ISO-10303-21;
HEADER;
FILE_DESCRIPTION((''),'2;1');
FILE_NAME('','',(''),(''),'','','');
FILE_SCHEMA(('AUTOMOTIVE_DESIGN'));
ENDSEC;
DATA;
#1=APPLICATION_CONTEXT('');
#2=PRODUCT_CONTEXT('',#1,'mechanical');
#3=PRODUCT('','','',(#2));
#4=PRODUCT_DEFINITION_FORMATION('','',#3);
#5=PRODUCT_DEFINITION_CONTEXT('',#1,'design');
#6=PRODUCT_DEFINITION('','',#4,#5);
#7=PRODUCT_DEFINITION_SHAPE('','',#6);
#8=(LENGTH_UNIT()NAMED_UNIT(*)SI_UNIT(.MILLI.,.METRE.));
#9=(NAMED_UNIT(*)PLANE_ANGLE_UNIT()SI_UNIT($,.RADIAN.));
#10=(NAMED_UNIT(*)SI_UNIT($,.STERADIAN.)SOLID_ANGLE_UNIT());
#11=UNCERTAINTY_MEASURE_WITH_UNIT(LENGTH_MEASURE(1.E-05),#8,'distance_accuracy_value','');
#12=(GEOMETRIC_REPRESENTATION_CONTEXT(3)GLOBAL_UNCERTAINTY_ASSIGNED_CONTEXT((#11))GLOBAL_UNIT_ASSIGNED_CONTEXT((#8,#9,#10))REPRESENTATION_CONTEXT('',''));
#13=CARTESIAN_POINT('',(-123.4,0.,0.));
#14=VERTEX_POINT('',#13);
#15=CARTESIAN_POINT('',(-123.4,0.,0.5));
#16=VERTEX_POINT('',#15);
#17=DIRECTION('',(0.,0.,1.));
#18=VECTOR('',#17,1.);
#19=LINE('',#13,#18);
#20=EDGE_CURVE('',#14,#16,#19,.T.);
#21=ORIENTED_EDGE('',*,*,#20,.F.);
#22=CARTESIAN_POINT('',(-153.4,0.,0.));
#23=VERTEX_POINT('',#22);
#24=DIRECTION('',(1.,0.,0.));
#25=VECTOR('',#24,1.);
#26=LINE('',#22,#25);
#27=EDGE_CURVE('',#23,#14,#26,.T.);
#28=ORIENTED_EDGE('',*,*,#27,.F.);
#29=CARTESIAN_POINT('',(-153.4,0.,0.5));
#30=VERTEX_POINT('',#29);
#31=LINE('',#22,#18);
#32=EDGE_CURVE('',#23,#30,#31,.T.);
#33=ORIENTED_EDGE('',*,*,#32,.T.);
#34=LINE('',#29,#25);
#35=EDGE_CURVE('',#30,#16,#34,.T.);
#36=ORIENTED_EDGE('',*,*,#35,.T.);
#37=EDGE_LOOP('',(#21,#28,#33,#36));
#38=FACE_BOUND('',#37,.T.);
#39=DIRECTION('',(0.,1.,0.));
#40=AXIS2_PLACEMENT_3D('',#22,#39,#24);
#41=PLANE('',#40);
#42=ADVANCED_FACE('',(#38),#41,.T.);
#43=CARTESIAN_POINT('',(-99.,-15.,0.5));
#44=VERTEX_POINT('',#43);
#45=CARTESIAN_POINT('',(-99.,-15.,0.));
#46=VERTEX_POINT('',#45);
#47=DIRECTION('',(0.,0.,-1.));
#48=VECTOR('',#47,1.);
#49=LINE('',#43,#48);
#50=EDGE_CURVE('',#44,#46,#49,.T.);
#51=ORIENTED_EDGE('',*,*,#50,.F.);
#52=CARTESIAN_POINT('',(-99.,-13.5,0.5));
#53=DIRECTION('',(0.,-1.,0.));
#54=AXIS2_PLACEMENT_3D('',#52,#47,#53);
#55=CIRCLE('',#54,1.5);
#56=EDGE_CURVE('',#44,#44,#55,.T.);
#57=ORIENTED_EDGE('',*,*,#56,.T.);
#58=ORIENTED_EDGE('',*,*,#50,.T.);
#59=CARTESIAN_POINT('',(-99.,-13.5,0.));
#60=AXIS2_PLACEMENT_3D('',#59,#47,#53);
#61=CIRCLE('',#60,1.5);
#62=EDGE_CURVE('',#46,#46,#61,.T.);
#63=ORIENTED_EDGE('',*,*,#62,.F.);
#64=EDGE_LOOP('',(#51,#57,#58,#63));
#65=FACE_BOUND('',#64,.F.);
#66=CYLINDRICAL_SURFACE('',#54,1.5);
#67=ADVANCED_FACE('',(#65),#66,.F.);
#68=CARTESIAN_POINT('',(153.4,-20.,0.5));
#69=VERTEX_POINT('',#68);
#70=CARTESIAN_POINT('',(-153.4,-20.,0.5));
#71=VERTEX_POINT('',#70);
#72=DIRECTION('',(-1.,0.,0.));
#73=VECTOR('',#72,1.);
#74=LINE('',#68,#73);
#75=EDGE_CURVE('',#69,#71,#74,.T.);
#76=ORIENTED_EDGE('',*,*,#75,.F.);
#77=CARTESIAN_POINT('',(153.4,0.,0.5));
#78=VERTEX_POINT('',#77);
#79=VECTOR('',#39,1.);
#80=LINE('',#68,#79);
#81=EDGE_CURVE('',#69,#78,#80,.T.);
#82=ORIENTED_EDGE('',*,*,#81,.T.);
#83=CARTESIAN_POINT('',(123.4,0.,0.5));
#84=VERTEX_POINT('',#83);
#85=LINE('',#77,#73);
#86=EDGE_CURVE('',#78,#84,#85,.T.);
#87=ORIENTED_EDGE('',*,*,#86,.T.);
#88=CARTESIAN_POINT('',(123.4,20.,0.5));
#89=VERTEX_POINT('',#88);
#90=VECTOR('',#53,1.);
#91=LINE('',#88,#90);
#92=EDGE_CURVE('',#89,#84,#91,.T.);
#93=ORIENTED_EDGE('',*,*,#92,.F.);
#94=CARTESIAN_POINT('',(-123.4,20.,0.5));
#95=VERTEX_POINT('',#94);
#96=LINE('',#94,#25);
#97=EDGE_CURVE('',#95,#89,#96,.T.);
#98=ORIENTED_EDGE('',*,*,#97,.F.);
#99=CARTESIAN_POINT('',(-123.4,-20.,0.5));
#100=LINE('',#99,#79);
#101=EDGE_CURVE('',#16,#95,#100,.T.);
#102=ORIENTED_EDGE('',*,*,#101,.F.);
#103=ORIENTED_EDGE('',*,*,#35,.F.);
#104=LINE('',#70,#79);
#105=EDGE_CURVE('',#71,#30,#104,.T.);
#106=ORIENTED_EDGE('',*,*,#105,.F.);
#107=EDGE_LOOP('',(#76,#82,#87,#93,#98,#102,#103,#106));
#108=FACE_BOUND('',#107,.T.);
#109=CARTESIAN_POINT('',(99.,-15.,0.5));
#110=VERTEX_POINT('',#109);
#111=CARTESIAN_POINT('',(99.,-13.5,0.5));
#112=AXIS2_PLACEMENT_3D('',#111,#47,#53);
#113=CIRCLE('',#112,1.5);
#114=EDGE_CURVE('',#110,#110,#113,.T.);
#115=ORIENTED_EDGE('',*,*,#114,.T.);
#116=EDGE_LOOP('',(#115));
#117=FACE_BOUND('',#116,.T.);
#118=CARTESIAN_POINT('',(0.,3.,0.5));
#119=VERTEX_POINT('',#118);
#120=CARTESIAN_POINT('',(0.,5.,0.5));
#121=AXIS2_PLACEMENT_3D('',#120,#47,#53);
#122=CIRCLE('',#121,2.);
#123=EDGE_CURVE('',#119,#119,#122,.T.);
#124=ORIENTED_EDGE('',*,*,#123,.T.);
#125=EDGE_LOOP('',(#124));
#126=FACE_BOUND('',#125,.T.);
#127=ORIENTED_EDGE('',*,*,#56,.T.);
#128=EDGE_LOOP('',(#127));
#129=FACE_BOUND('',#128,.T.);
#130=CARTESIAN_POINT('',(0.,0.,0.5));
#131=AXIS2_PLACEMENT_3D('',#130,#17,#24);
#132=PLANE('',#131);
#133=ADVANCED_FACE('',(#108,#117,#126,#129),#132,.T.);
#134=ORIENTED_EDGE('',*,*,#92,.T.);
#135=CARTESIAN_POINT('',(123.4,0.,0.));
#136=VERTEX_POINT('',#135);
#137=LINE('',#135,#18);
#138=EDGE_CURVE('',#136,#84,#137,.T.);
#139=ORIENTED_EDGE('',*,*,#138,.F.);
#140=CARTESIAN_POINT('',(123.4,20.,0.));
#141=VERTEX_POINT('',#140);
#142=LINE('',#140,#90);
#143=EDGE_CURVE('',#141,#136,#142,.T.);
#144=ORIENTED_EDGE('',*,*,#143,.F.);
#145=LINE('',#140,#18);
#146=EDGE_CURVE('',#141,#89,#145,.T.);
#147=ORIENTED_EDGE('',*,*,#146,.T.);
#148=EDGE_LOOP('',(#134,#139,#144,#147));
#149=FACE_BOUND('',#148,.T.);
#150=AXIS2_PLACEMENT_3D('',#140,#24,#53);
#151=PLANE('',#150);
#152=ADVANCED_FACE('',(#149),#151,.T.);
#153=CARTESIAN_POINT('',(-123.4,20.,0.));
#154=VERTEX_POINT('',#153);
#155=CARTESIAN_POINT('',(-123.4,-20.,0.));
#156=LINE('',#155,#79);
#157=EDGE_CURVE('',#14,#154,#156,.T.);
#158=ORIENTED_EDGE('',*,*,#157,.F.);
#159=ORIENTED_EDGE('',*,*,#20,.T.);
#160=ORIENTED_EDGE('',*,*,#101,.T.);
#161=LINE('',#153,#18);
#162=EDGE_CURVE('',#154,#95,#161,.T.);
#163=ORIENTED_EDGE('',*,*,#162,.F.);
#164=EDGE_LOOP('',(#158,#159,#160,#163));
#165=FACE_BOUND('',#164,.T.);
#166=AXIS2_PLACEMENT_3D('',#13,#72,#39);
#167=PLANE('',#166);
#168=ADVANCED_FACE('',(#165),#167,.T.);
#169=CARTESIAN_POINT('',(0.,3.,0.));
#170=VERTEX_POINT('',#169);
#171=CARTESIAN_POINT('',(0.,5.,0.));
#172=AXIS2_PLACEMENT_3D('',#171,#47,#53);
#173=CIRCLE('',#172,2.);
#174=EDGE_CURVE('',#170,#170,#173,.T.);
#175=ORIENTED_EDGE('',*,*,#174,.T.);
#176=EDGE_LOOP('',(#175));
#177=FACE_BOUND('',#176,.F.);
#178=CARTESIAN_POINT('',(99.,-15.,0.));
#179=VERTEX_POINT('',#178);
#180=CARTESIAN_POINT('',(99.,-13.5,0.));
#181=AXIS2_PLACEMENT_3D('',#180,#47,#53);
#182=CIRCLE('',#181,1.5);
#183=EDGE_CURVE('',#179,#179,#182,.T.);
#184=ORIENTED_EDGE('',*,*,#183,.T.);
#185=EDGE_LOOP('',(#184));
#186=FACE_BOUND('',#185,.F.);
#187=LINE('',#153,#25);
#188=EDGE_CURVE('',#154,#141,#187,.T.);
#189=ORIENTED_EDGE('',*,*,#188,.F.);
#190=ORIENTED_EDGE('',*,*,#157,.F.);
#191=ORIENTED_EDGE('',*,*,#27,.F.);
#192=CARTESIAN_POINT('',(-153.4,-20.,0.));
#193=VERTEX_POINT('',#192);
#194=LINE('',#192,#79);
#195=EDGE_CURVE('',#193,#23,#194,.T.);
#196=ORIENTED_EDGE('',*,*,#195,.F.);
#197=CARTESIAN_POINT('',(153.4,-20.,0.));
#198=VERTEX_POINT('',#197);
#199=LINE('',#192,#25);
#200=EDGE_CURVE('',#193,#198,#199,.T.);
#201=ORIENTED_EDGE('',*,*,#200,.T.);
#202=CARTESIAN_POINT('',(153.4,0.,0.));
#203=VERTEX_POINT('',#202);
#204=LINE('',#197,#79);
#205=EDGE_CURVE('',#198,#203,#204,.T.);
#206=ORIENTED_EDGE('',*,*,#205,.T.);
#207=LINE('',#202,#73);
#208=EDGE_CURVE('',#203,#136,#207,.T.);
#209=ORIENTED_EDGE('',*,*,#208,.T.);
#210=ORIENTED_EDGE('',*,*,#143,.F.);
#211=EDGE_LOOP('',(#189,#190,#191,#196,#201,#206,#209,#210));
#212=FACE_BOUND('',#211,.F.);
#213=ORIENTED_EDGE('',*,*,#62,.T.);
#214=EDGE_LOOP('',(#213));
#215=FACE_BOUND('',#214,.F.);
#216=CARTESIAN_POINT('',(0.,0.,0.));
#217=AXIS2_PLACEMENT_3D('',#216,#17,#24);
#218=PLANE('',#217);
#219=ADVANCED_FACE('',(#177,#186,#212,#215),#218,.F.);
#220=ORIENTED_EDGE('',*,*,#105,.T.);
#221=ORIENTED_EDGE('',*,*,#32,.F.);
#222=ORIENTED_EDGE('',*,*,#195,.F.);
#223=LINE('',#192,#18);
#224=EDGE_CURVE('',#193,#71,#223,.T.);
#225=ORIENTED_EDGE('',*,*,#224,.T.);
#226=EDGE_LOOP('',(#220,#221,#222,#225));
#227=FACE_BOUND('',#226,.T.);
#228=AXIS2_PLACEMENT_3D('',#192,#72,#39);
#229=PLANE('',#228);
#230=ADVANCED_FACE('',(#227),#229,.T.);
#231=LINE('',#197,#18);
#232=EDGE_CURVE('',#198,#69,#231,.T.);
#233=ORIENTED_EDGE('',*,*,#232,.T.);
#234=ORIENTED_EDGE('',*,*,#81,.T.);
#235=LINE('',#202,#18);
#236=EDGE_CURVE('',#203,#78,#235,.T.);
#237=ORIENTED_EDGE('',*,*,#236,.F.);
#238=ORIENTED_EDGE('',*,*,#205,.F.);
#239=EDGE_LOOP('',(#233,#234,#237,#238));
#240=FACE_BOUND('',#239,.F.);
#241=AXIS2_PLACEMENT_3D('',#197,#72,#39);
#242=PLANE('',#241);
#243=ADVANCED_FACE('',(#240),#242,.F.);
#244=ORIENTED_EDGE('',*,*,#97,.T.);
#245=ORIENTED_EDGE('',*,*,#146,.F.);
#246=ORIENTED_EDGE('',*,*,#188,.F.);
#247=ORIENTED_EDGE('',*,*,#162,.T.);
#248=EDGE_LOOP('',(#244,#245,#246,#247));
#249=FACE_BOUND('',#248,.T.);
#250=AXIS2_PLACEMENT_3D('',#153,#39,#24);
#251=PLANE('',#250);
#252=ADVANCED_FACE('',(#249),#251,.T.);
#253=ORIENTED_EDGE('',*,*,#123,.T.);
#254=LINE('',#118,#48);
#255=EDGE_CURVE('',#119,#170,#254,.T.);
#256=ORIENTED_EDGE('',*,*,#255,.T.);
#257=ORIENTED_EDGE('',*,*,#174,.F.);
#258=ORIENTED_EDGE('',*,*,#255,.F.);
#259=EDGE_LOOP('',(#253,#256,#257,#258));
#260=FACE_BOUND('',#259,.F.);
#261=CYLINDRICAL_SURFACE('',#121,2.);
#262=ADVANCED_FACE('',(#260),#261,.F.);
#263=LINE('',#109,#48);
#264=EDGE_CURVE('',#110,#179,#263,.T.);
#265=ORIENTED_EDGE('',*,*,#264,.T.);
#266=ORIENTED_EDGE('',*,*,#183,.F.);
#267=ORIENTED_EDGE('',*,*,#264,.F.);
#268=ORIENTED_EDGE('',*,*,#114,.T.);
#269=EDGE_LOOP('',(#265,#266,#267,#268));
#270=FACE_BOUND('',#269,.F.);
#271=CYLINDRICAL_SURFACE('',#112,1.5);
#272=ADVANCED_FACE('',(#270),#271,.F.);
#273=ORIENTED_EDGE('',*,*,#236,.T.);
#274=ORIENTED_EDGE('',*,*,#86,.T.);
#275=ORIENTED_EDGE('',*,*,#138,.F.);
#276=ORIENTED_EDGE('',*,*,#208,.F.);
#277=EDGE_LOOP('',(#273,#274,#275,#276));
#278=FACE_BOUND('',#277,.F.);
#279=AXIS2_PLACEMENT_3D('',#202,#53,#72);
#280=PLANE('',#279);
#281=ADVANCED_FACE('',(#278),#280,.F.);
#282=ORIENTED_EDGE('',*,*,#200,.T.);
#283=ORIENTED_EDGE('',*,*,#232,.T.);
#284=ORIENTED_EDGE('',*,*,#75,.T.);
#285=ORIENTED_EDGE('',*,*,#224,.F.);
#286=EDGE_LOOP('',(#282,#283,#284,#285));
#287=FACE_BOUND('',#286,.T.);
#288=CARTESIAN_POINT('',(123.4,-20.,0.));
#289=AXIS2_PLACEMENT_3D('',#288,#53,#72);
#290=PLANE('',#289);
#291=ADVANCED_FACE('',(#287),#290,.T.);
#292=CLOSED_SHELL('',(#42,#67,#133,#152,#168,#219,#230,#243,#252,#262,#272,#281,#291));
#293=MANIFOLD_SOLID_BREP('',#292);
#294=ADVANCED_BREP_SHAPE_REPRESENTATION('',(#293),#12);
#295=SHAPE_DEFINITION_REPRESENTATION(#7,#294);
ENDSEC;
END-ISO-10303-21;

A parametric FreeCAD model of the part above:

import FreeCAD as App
import Part
import Sketcher

V = App.Vector
Q = App.Units.Quantity


def add_polygon(sketch, points):
    """Adds a closed chain of lines whose ends are joined by coincident constraints."""
    first, n = sketch.GeometryCount, len(points)
    for a, b in zip(points, points[1:] + points[:1]):
        sketch.addGeometry(Part.LineSegment(App.Vector(*a, 0), App.Vector(*b, 0)), False)
    for i in range(n):
        sketch.addConstraint(Sketcher.Constraint("Coincident", first + i, 2, first + (i + 1) % n, 1))

doc = App.newDocument("Part")
body = doc.addObject("PartDesign::Body", "Body")

# Sketch on XY plane
sketch1 = body.newObject("Sketcher::SketchObject", "Sketch")
sketch1.AttachmentSupport = (doc.getObject("XY_Plane"), [""])
sketch1.MapMode = "FlatFace"
add_polygon(sketch1, [(153, -20), (153, 0), (123, 0), (123, 20), (-123, 20), (-123, 0), (-153, 0), (-153, -20)])  # lines 0-7
sketch1.addConstraint([
    Sketcher.Constraint("Vertical", 0),
    Sketcher.Constraint("Horizontal", 1),
    Sketcher.Constraint("Vertical", 2),
    Sketcher.Constraint("Horizontal", 3),
    Sketcher.Constraint("Vertical", 4),
    Sketcher.Constraint("Horizontal", 5),
    Sketcher.Constraint("Vertical", 6),
    Sketcher.Constraint("Horizontal", 7),
    Sketcher.Constraint("Symmetric", 1, 2, 4, 2, -1, 1),
    Sketcher.Constraint("Symmetric", 0, 2, 5, 2, -2),
    Sketcher.Constraint("Equal", 0, 2),
    Sketcher.Constraint("DistanceX", 1, 2, 1, 1, Q("30 mm")),
    Sketcher.Constraint("DistanceY", 0, 1, 0, 2, Q("20 mm")),
    Sketcher.Constraint("DistanceX", 3, 2, 3, 1, Q("246.8 mm")),
])
pad1 = body.newObject("PartDesign::Pad", "Pad")
pad1.Profile = sketch1
pad1.Length = 0.5

# Sketch on XY plane
sketch2 = body.newObject("Sketcher::SketchObject", "Sketch001")
sketch2.AttachmentSupport = (doc.getObject("XY_Plane"), [""])
sketch2.MapMode = "FlatFace"
sketch2.AttachmentOffset = App.Placement(V(0, 0, 0.5), App.Rotation())
sketch2.addGeometry(Part.Circle(V(0, 5, 0), V(0, 0, 1), 2), False)
sketch2.addConstraint([
    Sketcher.Constraint("PointOnObject", 0, 3, -2),
    Sketcher.Constraint("Diameter", 0, Q("4 mm")),
    Sketcher.Constraint("DistanceY", -1, 1, 0, 3, Q("5 mm")),
])
doc.recompute()
hole = body.newObject("PartDesign::Hole", "Hole")
hole.Profile = sketch2
hole.ThreadType = "None"
hole.Diameter = 4
hole.DepthType = "Dimension"
hole.Depth = 0.5
hole.DrillPoint = "Angled"
hole.DrillPointAngle = 118

# Sketch on XY plane
sketch3 = body.newObject("Sketcher::SketchObject", "Sketch002")
sketch3.AttachmentSupport = (doc.getObject("XY_Plane"), [""])
sketch3.MapMode = "FlatFace"
sketch3.AttachmentOffset = App.Placement(V(0, 0, 0.5), App.Rotation())
sketch3.addGeometry(Part.Circle(V(-99, -13.5, 0), V(0, 0, 1), 1.5), False)
sketch3.addConstraint([
    Sketcher.Constraint("Diameter", 0, Q("3 mm")),
    Sketcher.Constraint("DistanceX", 0, 3, -1, 1, Q("99 mm")),
    Sketcher.Constraint("DistanceY", 0, 3, -1, 1, Q("13.5 mm")),
])
doc.recompute()
hole2 = body.newObject("PartDesign::Hole", "Hole001")
hole2.Profile = sketch3
hole2.ThreadType = "None"
hole2.Diameter = 3
hole2.DepthType = "Dimension"
hole2.Depth = 0.5
hole2.DrillPoint = "Angled"
hole2.DrillPointAngle = 118

# Sketch on XY plane
sketch4 = body.newObject("Sketcher::SketchObject", "Sketch003")
sketch4.AttachmentSupport = (doc.getObject("XY_Plane"), [""])
sketch4.MapMode = "FlatFace"
sketch4.AttachmentOffset = App.Placement(V(0, 0, 0.5), App.Rotation())
sketch4.addGeometry(Part.Circle(V(99, -13.5, 0), V(0, 0, 1), 1.5), False)
sketch4.addConstraint([
    Sketcher.Constraint("Diameter", 0, Q("3 mm")),
    Sketcher.Constraint("DistanceX", -1, 1, 0, 3, Q("99 mm")),
    Sketcher.Constraint("DistanceY", 0, 3, -1, 1, Q("13.5 mm")),
])
doc.recompute()
hole3 = body.newObject("PartDesign::Hole", "Hole002")
hole3.Profile = sketch4
hole3.ThreadType = "None"
hole3.Diameter = 3
hole3.DepthType = "ThroughAll"

doc.recompute()
